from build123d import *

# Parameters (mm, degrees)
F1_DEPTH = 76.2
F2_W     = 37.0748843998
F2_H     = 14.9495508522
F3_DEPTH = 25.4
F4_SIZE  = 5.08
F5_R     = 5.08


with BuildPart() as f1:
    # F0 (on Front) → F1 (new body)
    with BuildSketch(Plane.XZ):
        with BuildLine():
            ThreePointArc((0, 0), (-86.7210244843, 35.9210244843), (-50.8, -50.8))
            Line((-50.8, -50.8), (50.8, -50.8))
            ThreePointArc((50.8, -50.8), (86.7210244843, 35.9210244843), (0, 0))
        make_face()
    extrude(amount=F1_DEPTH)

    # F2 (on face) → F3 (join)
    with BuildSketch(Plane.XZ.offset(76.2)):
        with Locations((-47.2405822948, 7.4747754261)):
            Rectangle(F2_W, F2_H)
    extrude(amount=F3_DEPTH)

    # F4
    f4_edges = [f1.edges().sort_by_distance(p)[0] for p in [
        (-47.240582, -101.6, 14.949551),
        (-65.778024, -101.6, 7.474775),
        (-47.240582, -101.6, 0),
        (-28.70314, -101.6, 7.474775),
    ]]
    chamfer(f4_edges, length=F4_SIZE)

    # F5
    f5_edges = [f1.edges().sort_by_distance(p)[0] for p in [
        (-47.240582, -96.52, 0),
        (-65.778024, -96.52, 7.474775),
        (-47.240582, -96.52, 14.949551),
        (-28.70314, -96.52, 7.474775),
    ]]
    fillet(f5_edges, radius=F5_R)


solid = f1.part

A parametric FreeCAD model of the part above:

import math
import FreeCAD as App
import Part
import Sketcher
Q = App.Units.Quantity


def edges_at(feature, points):
    """Names of the edges that pass closest to the given points."""
    edges = feature.Shape.Edges
    near = lambda p: min(range(len(edges)), key=lambda i: edges[i].distToShape(Part.Vertex(*p))[0])
    return sorted({f"Edge{near(p) + 1}" for p in points})


def add_polygon(sketch, points):
    """Adds a closed chain of lines whose ends are joined by coincident constraints."""
    first, n = sketch.GeometryCount, len(points)
    for a, b in zip(points, points[1:] + points[:1]):
        sketch.addGeometry(Part.LineSegment(App.Vector(*a, 0), App.Vector(*b, 0)), False)
    for i in range(n):
        sketch.addConstraint(Sketcher.Constraint("Coincident", first + i, 2, first + (i + 1) % n, 1))

doc = App.newDocument("Part")
body = doc.addObject("PartDesign::Body", "Body")

# Sketch on XZ plane
sketch1 = body.newObject("Sketcher::SketchObject", "Sketch")
sketch1.AttachmentSupport = (doc.getObject("XZ_Plane"), [""])
sketch1.MapMode = "FlatFace"
sketch1.addGeometry([
    Part.ArcOfCircle(Part.Circle(App.Vector(-51, 0, 0), App.Vector(0, 0, 1), 51), math.radians(0), math.radians(270)),
    Part.LineSegment(App.Vector(-51, -51, 0), App.Vector(51, -51, 0)),
    Part.ArcOfCircle(Part.Circle(App.Vector(51, 0, 0), App.Vector(0, 0, 1), 51), math.radians(-90), math.radians(180)),
], False)
sketch1.addConstraint([
    Sketcher.Constraint("Tangent", 0, 2, 1, 1),
    Sketcher.Constraint("Tangent", 1, 2, 2, 1),
    Sketcher.Constraint("Tangent", 2, 2, 0, 1),
    Sketcher.Constraint("Horizontal", 1),
    Sketcher.Constraint("Coincident", 2, 2, -1, 1),
    Sketcher.Constraint("Equal", 0, 2),
    Sketcher.Constraint("Radius", 0, Q("2 in")),
])
pad1 = body.newObject("PartDesign::Pad", "Pad")
pad1.Profile = sketch1
pad1.Length = Q("3 in")

# Sketch on XZ plane
sketch2 = body.newObject("Sketcher::SketchObject", "Sketch001")
sketch2.AttachmentSupport = (doc.getObject("XZ_Plane"), [""])
sketch2.MapMode = "FlatFace"
sketch2.AttachmentOffset = App.Placement(App.Vector(0, 0, 3 * 25.4), App.Rotation())
add_polygon(sketch2, [(-66, 15), (-66, 0), (-29, 0), (-29, 15)])  # lines 0-3
sketch2.addConstraint([
    Sketcher.Constraint("Vertical", 0),
    Sketcher.Constraint("Horizontal", 1),
    Sketcher.Constraint("Vertical", 2),
    Sketcher.Constraint("Horizontal", 3),
    Sketcher.Constraint("PointOnObject", 0, 2, -1),
    Sketcher.Constraint("DistanceY", 0, 2, 0, 1, 14.949551),
    Sketcher.Constraint("DistanceX", 1, 1, 1, 2, 37.074884),
    Sketcher.Constraint("DistanceX", 1, 2, -1, 1, 28.70314),
])
pad2 = body.newObject("PartDesign::Pad", "Pad001")
pad2.Profile = sketch2
pad2.Length = Q("1 in")
doc.recompute()

chamfer = body.newObject("PartDesign::Chamfer", "Chamfer")
chamfer.Base = (pad2, edges_at(pad2, [
    (-47.241, -101.6, 14.95),
    (-65.778, -101.6, 7.475),
    (-47.241, -101.6, 0),
    (-28.703, -101.6, 7.475),
]))
chamfer.Size = Q("0.2 in")
doc.recompute()

fillet = body.newObject("PartDesign::Fillet", "Fillet")
fillet.Base = (chamfer, edges_at(chamfer, [
    (-47.241, -96.52, 0),
    (-65.778, -96.52, 7.475),
    (-47.241, -96.52, 14.95),
    (-28.703, -96.52, 7.475),
]))
fillet.Radius = Q("0.2 in")

doc.recompute()
